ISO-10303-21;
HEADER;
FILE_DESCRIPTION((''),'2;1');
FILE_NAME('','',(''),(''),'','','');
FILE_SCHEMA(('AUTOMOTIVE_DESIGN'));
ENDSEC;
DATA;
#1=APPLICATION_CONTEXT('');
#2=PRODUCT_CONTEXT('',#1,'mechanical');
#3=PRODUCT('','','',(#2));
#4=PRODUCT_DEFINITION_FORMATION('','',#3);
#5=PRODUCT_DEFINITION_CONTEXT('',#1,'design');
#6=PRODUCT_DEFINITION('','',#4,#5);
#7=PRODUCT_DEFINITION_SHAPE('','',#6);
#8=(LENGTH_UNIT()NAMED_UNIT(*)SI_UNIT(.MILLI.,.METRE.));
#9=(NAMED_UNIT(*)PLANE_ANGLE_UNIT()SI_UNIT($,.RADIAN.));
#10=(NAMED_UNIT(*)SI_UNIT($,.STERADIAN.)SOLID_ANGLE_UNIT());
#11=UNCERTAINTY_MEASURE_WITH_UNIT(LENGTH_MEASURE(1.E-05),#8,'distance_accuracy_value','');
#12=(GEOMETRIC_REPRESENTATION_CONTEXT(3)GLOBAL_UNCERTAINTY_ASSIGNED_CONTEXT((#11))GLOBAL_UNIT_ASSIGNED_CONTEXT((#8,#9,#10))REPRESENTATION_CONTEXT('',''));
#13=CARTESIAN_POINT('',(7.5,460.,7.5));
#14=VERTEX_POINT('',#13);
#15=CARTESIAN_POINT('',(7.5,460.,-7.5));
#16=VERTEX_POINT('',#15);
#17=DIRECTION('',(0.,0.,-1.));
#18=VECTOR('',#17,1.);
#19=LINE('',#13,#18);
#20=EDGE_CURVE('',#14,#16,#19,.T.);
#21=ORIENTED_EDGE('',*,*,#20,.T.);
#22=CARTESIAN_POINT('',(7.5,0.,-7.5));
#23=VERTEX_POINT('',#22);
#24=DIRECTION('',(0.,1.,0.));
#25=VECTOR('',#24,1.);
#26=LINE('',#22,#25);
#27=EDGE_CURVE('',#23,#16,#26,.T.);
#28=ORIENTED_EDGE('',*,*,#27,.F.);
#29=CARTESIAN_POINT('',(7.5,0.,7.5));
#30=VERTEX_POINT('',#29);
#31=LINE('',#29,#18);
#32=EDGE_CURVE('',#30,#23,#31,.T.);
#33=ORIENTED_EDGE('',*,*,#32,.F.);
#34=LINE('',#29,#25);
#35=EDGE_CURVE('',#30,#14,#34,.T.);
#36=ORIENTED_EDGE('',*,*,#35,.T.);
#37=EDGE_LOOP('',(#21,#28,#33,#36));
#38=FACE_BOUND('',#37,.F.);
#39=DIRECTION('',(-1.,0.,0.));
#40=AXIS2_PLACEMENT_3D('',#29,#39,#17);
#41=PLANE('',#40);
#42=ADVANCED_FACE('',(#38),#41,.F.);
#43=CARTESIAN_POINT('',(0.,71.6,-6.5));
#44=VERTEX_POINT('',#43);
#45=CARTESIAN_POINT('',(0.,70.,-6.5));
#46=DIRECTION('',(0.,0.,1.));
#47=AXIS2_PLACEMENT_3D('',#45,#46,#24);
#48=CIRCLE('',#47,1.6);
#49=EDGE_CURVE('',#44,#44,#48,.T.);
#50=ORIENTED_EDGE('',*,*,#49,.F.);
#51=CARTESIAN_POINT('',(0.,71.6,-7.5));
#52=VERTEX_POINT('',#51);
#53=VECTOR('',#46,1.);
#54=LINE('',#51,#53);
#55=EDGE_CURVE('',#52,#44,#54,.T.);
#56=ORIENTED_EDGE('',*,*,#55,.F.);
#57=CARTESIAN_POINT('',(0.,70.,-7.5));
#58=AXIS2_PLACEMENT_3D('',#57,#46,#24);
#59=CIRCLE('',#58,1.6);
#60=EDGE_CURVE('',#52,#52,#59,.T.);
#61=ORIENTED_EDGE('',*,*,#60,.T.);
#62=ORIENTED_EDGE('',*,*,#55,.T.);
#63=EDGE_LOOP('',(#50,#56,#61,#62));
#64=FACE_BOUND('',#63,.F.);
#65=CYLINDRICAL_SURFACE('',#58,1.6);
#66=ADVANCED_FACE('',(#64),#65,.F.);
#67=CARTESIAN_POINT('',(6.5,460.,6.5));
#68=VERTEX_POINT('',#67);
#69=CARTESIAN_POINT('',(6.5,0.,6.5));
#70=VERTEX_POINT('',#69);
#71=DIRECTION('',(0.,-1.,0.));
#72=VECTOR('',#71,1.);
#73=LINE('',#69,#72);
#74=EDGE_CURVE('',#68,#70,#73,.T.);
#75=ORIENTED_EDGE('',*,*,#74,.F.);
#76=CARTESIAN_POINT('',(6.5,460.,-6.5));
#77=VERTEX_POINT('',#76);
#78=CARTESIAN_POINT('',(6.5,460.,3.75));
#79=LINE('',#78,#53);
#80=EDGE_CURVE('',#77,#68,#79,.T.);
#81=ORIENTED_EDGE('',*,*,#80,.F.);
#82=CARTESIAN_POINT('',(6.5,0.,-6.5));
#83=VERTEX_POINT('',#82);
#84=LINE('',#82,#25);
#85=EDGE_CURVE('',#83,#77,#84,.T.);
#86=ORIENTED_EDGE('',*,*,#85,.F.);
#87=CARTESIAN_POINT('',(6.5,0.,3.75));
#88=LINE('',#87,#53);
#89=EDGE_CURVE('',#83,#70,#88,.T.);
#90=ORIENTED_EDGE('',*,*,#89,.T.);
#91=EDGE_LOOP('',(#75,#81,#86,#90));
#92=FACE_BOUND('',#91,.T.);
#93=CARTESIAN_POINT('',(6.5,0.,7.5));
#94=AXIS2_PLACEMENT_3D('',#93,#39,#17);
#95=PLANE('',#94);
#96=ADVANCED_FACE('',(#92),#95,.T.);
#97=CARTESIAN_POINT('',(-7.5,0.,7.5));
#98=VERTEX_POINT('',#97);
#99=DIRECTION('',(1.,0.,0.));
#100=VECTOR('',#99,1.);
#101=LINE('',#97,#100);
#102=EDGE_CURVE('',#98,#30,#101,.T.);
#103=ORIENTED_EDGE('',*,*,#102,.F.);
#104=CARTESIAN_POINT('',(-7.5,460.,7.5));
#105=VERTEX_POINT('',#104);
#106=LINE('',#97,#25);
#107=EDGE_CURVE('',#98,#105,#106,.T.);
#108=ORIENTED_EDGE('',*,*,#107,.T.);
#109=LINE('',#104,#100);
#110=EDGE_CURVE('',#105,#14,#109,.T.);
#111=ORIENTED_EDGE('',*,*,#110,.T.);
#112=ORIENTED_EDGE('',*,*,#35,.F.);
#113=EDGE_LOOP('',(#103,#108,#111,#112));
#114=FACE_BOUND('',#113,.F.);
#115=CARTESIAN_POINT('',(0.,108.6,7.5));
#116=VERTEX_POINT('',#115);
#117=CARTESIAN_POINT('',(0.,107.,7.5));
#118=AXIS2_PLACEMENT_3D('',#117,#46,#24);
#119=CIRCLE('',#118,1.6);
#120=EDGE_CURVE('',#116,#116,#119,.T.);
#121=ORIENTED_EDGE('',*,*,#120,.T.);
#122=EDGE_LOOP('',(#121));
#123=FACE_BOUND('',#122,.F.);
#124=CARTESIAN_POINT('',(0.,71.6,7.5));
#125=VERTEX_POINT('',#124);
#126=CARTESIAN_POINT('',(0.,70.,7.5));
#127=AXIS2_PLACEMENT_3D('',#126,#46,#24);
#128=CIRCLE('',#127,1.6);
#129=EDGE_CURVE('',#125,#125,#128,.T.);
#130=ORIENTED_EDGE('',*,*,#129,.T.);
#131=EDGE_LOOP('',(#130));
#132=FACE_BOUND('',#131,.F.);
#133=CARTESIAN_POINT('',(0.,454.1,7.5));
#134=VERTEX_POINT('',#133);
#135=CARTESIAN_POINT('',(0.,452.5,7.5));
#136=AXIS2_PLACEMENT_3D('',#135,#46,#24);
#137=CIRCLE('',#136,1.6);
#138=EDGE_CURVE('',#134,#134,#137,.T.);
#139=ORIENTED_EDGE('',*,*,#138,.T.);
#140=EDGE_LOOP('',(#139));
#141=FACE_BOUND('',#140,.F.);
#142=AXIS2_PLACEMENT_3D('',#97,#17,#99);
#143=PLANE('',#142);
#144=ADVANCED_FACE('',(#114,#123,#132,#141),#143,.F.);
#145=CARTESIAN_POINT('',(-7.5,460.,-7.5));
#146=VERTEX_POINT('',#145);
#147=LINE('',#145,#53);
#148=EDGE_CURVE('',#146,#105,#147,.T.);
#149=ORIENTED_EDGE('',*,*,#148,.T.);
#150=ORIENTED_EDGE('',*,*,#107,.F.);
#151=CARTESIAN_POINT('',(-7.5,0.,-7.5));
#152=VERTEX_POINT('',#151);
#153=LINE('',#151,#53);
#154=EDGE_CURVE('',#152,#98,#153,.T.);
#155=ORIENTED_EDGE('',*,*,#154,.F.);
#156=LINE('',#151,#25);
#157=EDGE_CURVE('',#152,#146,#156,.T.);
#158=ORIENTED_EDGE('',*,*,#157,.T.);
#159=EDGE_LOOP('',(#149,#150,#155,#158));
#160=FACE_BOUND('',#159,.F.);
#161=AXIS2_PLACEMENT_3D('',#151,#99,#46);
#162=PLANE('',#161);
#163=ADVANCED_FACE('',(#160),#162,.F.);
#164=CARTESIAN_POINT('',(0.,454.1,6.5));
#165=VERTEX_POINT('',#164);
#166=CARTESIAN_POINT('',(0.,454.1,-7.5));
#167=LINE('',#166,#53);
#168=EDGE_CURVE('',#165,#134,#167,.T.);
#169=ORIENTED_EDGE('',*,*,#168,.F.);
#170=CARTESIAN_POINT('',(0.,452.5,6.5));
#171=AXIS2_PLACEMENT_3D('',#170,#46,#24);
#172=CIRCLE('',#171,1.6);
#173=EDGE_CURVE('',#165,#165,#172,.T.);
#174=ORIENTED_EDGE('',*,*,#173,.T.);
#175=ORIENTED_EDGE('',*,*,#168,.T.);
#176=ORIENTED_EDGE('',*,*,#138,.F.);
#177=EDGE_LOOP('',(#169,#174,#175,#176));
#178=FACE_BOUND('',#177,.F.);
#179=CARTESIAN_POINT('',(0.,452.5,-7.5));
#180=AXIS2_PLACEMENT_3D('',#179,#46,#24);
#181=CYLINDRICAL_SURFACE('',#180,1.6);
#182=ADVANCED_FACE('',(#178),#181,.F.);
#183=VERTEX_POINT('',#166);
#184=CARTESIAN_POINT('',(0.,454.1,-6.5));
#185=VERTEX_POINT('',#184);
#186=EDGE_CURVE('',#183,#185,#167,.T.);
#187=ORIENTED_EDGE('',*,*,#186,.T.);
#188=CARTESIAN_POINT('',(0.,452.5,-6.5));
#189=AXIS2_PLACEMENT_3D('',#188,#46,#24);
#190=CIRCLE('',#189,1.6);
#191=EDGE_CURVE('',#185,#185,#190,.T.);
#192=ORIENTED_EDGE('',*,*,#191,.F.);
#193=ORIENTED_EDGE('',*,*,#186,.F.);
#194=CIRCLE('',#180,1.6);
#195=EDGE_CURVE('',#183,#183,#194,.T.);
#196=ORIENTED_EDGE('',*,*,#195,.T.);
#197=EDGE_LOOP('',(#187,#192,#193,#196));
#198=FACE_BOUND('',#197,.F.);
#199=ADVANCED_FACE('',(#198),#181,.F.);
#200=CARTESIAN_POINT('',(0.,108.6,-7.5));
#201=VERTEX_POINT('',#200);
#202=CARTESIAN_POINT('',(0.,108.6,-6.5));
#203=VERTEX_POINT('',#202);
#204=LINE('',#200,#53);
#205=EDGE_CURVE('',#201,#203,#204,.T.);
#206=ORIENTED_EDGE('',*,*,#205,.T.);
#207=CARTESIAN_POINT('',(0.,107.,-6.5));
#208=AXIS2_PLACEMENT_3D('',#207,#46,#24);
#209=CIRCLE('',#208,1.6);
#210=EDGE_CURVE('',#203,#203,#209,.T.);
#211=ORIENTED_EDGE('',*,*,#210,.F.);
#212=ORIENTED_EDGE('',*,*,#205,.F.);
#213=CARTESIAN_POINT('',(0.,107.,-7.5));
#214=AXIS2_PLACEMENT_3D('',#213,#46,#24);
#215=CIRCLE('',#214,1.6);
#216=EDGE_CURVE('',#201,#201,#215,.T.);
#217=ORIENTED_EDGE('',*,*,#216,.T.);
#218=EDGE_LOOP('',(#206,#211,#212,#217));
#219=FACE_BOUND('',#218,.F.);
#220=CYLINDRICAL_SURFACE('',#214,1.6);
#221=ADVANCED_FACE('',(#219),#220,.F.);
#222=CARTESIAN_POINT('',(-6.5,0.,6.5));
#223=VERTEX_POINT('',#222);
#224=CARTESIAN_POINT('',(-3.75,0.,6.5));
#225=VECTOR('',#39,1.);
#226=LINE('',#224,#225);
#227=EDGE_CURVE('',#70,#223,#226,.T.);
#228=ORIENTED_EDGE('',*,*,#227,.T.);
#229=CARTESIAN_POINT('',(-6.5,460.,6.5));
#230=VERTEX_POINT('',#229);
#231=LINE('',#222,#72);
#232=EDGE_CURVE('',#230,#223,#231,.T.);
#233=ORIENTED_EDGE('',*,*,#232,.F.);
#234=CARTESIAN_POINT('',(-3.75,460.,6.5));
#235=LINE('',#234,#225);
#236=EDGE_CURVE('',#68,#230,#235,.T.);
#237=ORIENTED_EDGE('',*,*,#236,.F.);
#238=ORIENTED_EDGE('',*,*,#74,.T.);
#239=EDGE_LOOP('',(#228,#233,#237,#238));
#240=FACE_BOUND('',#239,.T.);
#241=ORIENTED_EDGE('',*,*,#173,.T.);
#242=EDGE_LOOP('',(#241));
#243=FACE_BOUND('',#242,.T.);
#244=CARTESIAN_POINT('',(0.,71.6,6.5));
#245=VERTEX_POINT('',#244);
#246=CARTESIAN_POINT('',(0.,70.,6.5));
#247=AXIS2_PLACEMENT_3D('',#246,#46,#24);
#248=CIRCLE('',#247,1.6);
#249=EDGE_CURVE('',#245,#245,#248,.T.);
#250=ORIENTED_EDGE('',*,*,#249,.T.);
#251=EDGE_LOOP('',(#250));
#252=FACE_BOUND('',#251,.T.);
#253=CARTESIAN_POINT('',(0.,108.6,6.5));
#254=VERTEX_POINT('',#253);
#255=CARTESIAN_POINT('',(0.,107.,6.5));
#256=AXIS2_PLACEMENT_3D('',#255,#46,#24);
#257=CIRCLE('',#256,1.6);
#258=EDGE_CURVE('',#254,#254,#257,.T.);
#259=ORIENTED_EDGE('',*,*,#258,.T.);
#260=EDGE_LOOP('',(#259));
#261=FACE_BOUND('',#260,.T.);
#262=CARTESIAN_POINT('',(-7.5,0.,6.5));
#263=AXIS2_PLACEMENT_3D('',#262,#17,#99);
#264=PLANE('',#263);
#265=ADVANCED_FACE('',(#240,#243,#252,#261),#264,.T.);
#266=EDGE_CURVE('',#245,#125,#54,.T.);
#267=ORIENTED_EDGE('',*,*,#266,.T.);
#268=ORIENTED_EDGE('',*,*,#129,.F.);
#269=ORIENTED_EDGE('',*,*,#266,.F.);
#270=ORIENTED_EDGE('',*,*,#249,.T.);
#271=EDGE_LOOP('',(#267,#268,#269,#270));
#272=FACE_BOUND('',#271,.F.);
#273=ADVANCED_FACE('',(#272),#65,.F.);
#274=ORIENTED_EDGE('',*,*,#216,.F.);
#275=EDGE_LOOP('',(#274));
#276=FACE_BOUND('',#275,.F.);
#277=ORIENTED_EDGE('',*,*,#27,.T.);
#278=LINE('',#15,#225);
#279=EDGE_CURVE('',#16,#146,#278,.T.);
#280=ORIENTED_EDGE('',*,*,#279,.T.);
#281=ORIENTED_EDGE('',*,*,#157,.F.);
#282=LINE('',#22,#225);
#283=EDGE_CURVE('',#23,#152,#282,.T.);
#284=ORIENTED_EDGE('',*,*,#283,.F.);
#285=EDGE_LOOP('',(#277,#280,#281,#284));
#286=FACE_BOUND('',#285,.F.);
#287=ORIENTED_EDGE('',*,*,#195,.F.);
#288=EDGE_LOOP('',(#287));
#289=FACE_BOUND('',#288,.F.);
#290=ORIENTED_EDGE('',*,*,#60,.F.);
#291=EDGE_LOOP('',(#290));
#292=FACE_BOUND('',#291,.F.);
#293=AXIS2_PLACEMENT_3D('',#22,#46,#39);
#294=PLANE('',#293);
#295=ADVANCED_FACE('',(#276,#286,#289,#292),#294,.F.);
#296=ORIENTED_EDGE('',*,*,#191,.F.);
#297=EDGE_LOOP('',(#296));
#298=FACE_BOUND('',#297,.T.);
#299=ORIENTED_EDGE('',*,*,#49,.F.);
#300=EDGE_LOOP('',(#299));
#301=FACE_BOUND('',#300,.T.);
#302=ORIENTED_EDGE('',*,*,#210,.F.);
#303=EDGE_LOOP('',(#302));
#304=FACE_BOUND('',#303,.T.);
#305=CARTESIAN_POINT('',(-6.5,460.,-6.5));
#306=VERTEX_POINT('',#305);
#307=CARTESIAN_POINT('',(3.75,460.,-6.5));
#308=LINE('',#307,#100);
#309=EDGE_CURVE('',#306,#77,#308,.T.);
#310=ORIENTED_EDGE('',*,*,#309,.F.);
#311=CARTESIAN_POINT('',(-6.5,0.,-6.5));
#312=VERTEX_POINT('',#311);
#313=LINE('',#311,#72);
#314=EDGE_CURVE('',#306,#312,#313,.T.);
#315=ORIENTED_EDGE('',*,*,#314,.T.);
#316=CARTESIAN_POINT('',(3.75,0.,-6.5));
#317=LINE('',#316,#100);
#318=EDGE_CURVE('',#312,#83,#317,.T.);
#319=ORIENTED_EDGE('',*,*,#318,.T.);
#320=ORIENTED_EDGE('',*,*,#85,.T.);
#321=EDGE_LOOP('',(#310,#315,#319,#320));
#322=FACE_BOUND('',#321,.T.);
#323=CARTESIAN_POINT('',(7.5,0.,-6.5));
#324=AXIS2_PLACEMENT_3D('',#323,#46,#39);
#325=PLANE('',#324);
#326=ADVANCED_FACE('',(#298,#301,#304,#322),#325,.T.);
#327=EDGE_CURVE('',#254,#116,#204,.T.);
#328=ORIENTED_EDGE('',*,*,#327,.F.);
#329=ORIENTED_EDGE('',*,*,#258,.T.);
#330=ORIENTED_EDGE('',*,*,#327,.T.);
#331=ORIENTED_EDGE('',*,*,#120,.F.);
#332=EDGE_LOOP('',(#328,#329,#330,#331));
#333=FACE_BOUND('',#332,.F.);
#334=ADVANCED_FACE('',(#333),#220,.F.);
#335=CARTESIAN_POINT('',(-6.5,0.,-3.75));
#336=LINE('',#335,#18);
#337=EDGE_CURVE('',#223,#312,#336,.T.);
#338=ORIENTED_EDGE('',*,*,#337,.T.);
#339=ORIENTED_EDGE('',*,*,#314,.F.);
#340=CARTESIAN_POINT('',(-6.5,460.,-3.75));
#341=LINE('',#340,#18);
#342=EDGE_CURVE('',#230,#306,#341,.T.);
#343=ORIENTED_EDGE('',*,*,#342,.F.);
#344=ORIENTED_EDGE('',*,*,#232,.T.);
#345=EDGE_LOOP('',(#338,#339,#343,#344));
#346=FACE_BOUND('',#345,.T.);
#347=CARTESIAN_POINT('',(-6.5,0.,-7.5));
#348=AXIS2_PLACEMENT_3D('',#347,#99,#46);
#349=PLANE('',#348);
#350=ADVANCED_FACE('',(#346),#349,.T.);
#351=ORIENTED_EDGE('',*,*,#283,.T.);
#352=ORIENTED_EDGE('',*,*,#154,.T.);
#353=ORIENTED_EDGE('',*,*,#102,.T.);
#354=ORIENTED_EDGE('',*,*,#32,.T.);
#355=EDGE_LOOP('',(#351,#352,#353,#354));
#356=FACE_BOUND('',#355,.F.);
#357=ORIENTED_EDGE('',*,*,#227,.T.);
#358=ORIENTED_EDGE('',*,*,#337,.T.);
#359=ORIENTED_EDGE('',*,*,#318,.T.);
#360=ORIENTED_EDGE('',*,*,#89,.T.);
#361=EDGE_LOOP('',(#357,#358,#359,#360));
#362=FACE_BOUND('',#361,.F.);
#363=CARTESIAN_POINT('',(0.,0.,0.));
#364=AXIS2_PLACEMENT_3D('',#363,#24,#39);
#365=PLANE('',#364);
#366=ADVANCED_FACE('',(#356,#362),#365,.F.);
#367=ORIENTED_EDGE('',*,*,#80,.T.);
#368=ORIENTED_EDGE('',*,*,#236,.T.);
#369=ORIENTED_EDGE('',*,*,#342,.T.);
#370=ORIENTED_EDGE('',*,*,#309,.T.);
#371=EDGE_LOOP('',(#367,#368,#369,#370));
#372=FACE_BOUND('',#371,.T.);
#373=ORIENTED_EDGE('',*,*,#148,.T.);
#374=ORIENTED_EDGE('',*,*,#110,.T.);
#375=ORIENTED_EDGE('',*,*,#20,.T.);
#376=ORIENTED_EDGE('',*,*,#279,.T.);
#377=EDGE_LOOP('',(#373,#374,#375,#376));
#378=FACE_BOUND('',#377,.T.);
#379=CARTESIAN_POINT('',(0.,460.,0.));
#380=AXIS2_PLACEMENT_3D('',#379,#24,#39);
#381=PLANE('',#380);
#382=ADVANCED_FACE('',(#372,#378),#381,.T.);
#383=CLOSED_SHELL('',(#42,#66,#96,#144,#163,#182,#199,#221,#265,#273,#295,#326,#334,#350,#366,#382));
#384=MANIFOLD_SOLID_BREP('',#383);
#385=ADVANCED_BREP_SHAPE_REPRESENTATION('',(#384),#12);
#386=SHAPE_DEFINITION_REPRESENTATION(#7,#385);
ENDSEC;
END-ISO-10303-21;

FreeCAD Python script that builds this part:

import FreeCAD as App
import Part
import Sketcher
from FreeCAD import Vector


def faces_at(feature, points):
    """Names of the faces that lie closest to the given points."""
    faces = feature.Shape.Faces
    near = lambda p: min(range(len(faces)), key=lambda i: faces[i].distToShape(Part.Vertex(*p))[0])
    return sorted({f"Face{near(p) + 1}" for p in points})

doc = App.newDocument("Part")
body = doc.addObject("PartDesign::Body", "Body")

sketch1 = doc.addObject("Sketcher::SketchObject", "Sketch")
body.addObject(sketch1)
sketch1.AttachmentSupport = (doc.XZ_Plane, [""])
sketch1.MapMode = "FlatFace"
sketch1.addGeometry([
    Part.LineSegment(Vector(8, 8, 0), Vector(8, -8, 0)),
    Part.LineSegment(Vector(8, -8, 0), Vector(-8, -8, 0)),
    Part.LineSegment(Vector(-8, -8, 0), Vector(-8, 8, 0)),
    Part.LineSegment(Vector(-8, 8, 0), Vector(8, 8, 0)),
], False)
sketch1.addConstraint([
    Sketcher.Constraint("Coincident", 0, 2, 1, 1),
    Sketcher.Constraint("Coincident", 1, 2, 2, 1),
    Sketcher.Constraint("Coincident", 2, 2, 3, 1),
    Sketcher.Constraint("Coincident", 3, 2, 0, 1),
    Sketcher.Constraint("Vertical", 0),
    Sketcher.Constraint("Horizontal", 1),
    Sketcher.Constraint("Vertical", 2),
    Sketcher.Constraint("Horizontal", 3),
    Sketcher.Constraint("Symmetric", 0, 2, 2, 2, -1, 1),
    Sketcher.Constraint("Equal", 3, 0),
    Sketcher.Constraint("DistanceX", 1, 2, 1, 1, 15.0),
])
pad1 = doc.addObject("PartDesign::Pad", "Pad")
body.addObject(pad1)
pad1.Profile = sketch1
pad1.Length = 460
pad1.Reversed = True
doc.recompute()

thickness = doc.addObject("PartDesign::Thickness", "Thickness")
body.addObject(thickness)
thickness.Base = (pad1, faces_at(pad1, [(2.5, 0, 2.5), (2.5, 460, 2.5)]))
thickness.Value = 1
thickness.Reversed = True
thickness.Join = "Intersection"

sketch2 = doc.addObject("Sketcher::SketchObject", "Sketch001")
body.addObject(sketch2)
sketch2.AttachmentSupport = (doc.XY_Plane, [""])
sketch2.MapMode = "FlatFace"
sketch2.AttachmentOffset = App.Placement(Vector(0, 0, -7.5), App.Rotation())
sketch2.addGeometry([
    Part.Circle(Vector(0, 70, 0), Vector(0, 0, 1), 1.6),
    Part.Circle(Vector(0, 107, 0), Vector(0, 0, 1), 1.6),
    Part.Circle(Vector(0, 452.5, 0), Vector(0, 0, 1), 1.6),
], False)
sketch2.addConstraint([
    Sketcher.Constraint("Equal", 0, 1),
    Sketcher.Constraint("Equal", 1, 2),
    Sketcher.Constraint("PointOnObject", 0, 3, -2),
    Sketcher.Constraint("PointOnObject", 1, 3, -2),
    Sketcher.Constraint("PointOnObject", 2, 3, -2),
    Sketcher.Constraint("Diameter", 0, 3.2),
    Sketcher.Constraint("DistanceY", -1, 1, 0, 3, 70.0),
    Sketcher.Constraint("DistanceY", -1, 1, 1, 3, 107.0),
    Sketcher.Constraint("DistanceY", -1, 1, 2, 3, 452.5),
])
doc.recompute()
hole = doc.addObject("PartDesign::Hole", "Hole")
body.addObject(hole)
hole.Profile = sketch2
hole.ThreadType = "None"
hole.Diameter = 3.2
hole.DepthType = "ThroughAll"
hole.Reversed = True

doc.recompute()
